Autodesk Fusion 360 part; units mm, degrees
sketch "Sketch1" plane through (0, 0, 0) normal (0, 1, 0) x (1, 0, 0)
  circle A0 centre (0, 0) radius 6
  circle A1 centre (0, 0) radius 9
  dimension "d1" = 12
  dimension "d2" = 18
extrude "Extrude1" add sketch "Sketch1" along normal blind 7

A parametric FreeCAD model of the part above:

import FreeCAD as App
import Part
import Sketcher
Q = App.Units.Quantity

doc = App.newDocument("Part")
body = doc.addObject("PartDesign::Body", "Body")

# Sketch on XZ plane
sketch1 = body.newObject("Sketcher::SketchObject", "Sketch")
sketch1.AttachmentSupport = (doc.getObject("XZ_Plane"), [""])
sketch1.MapMode = "FlatFace"
sketch1.addGeometry([
    Part.Circle(App.Vector(0, 0, 0), App.Vector(0, 0, 1), 9),
    Part.Circle(App.Vector(0, 0, 0), App.Vector(0, 0, 1), 6),
], False)
sketch1.addConstraint([
    Sketcher.Constraint("Coincident", 0, 3, -1, 1),
    Sketcher.Constraint("Coincident", 1, 3, -1, 1),
    Sketcher.Constraint("Diameter", 0, Q("18 mm")),
    Sketcher.Constraint("Diameter", 1, Q("12 mm")),
])
pad1 = body.newObject("PartDesign::Pad", "Pad")
pad1.Profile = sketch1
pad1.Length = 7
pad1.Reversed = True

doc.recompute()
